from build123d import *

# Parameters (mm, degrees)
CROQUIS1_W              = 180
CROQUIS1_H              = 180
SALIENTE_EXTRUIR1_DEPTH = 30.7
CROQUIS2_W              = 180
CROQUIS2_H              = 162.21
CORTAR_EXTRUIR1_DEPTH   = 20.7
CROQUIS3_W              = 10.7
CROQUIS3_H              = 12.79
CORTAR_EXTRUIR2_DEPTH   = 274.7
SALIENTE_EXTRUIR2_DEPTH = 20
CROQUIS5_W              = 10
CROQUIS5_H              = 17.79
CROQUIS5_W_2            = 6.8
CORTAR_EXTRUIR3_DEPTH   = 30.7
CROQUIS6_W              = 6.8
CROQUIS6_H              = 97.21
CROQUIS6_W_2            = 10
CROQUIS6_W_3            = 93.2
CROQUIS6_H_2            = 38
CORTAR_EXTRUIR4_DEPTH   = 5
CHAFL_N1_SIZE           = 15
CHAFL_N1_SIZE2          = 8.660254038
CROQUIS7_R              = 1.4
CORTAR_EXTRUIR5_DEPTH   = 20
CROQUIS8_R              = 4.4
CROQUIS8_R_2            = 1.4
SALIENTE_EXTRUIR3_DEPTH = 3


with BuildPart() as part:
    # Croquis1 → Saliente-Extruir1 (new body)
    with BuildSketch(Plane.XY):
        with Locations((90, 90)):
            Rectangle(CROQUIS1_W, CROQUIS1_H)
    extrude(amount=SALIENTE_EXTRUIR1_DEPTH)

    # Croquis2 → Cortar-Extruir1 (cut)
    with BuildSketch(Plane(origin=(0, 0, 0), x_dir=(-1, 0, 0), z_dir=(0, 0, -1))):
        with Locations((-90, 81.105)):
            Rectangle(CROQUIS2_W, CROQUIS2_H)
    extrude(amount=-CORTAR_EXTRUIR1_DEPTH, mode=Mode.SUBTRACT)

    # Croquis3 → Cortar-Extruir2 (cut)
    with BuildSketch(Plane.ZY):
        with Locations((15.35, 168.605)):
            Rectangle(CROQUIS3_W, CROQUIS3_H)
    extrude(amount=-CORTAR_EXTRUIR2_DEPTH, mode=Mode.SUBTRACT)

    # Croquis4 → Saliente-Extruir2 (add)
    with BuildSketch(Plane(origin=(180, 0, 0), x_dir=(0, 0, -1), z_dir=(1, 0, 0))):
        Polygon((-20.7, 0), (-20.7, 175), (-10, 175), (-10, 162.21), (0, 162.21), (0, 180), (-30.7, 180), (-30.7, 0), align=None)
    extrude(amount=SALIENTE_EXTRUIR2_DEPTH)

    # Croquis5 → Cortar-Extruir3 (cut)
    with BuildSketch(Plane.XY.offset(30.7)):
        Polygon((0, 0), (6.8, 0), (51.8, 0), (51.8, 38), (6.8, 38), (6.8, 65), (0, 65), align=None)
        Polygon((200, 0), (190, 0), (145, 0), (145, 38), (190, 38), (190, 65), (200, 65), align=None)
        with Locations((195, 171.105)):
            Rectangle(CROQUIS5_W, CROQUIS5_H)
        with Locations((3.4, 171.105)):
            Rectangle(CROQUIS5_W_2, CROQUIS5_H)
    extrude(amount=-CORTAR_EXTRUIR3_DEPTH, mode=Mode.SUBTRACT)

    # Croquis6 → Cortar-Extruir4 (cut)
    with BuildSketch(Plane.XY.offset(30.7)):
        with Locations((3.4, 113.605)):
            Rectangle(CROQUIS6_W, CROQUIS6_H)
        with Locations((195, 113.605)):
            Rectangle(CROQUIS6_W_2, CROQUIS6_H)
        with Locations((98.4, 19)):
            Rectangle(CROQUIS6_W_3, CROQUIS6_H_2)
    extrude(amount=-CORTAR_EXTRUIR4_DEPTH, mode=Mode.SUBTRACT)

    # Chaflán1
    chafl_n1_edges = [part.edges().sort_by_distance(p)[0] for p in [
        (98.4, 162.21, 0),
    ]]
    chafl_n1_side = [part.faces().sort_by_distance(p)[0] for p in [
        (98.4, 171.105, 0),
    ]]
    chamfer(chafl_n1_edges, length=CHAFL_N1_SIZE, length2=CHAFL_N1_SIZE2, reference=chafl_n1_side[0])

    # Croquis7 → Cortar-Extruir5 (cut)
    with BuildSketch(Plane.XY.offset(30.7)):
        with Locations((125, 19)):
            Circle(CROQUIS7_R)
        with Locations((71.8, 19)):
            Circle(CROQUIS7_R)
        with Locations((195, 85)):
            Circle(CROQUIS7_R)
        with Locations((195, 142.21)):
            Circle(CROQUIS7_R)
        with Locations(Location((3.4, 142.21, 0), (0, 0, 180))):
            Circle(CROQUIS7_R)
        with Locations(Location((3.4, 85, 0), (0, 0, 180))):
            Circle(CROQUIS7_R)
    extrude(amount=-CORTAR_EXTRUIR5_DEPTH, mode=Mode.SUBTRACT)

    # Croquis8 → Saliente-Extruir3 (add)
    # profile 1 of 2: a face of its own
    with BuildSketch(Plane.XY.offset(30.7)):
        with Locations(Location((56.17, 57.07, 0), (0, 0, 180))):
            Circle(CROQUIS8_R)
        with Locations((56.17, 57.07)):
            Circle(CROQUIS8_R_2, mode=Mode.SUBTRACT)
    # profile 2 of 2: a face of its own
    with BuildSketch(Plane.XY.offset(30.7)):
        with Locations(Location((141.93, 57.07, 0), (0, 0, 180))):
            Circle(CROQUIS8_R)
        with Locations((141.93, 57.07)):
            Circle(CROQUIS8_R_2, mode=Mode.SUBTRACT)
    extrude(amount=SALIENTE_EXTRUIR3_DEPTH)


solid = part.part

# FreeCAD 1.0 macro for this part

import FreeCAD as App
import Part
import Sketcher

V = App.Vector


def edges_at(feature, points):
    """Names of the edges that pass closest to the given points."""
    edges = feature.Shape.Edges
    near = lambda p: min(range(len(edges)), key=lambda i: edges[i].distToShape(Part.Vertex(*p))[0])
    return sorted({f"Edge{near(p) + 1}" for p in points})

doc = App.newDocument("Part")
params = doc.addObject("Spreadsheet::Sheet", "Params")
for row, (alias, value) in enumerate([
    ("sketch1_width", "180 mm"),
    ("pad1_length", "30.7 mm"),
    ("sketch2_width", "180 mm"),
    ("sketch2_height", "162.21 mm"),
    ("pocket1_length", "20.7 mm"),
    ("sketch3_height", "10.7 mm"),
    ("sketch3_width", "12.79 mm"),
    ("pocket2_length", "274.7 mm"),
    ("sketch4_width", "175 mm"),
    ("sketch4_width2", "180 mm"),
    ("sketch4_height", "10 mm"),
    ("sketch4_height2", "10.7 mm"),
    ("sketch4_width3", "12.79 mm"),
    ("pad2_length", "20 mm"),
    ("sketch5_width", "45 mm"),
    ("sketch5_width2", "55 mm"),
    ("sketch5_height", "38 mm"),
    ("sketch5_height2", "27 mm"),
    ("sketch5_width3", "51.8 mm"),
    ("pocket3_length", "30.7 mm"),
    ("sketch6_width", "10 mm"),
    ("sketch6_height", "38 mm"),
    ("sketch6_width2", "6.8 mm"),
    ("sketch6_width3", "93.2 mm"),
    ("sketch6_height2", "97.21 mm"),
    ("pocket4_length", "5 mm"),
    ("chamfer_size", "15 mm"),
    ("chamfer_size2", "8.660254 mm"),
    ("sketch7_diameter", "2.8 mm"),
    ("pocket5_length", "20 mm"),
    ("sketch8_diameter", "8.8 mm"),
    ("sketch8_diameter2", "2.8 mm"),
    ("pad3_length", "3 mm"),
], start=1):
    params.set(f"A{row}", alias)
    params.set(f"B{row}", "=" + value)
    params.setAlias(f"B{row}", alias)

body = doc.addObject("PartDesign::Body", "Body")

sketch1 = body.newObject("Sketcher::SketchObject", "Sketch")
sketch1.AttachmentSupport = (doc.getObject("XY_Plane"), [""])
sketch1.MapMode = "FlatFace"
sketch1.addGeometry([
    Part.LineSegment(V(0, 180, 0), V(0, 0, 0)),
    Part.LineSegment(V(0, 0, 0), V(180, 0, 0)),
    Part.LineSegment(V(180, 0, 0), V(180, 180, 0)),
    Part.LineSegment(V(180, 180, 0), V(0, 180, 0)),
], False)
sketch1.addConstraint([
    Sketcher.Constraint("Coincident", 0, 2, 1, 1),
    Sketcher.Constraint("Coincident", 1, 2, 2, 1),
    Sketcher.Constraint("Coincident", 2, 2, 3, 1),
    Sketcher.Constraint("Coincident", 3, 2, 0, 1),
    Sketcher.Constraint("Vertical", 0),
    Sketcher.Constraint("Horizontal", 1),
    Sketcher.Constraint("Vertical", 2),
    Sketcher.Constraint("Horizontal", 3),
    Sketcher.Constraint("Coincident", 0, 2, -1, 1),
    Sketcher.Constraint("Equal", 3, 0),
    Sketcher.Constraint("DistanceX", 1, 1, 1, 2, 180.0),
])
sketch1.setExpression("Constraints[10]", "Params.sketch1_width")
pad1 = body.newObject("PartDesign::Pad", "Pad")
pad1.Profile = sketch1
pad1.setExpression("Length", "Params.pad1_length")

sketch2 = body.newObject("Sketcher::SketchObject", "Sketch001")
sketch2.AttachmentSupport = (doc.getObject("XY_Plane"), [""])
sketch2.MapMode = "FlatFace"
sketch2.addGeometry([
    Part.LineSegment(V(180, 162, 0), V(180, 0, 0)),
    Part.LineSegment(V(180, 0, 0), V(0, 0, 0)),
    Part.LineSegment(V(0, 0, 0), V(0, 162, 0)),
    Part.LineSegment(V(0, 162, 0), V(180, 162, 0)),
], False)
sketch2.addConstraint([
    Sketcher.Constraint("Coincident", 0, 2, 1, 1),
    Sketcher.Constraint("Coincident", 1, 2, 2, 1),
    Sketcher.Constraint("Coincident", 2, 2, 3, 1),
    Sketcher.Constraint("Coincident", 3, 2, 0, 1),
    Sketcher.Constraint("Vertical", 0),
    Sketcher.Constraint("Horizontal", 1),
    Sketcher.Constraint("Vertical", 2),
    Sketcher.Constraint("Horizontal", 3),
    Sketcher.Constraint("Coincident", 1, 2, -1, 1),
    Sketcher.Constraint("DistanceX", 1, 2, 1, 1, 180.0),
    Sketcher.Constraint("DistanceY", 0, 2, 0, 1, 162.21),
])
sketch2.setExpression("Constraints[9]", "Params.sketch2_width")
sketch2.setExpression("Constraints[10]", "Params.sketch2_height")
pocket1 = body.newObject("PartDesign::Pocket", "Pocket")
pocket1.Profile = sketch2
pocket1.setExpression("Length", "Params.pocket1_length")
pocket1.Reversed = True

sketch3 = body.newObject("Sketcher::SketchObject", "Sketch002")
sketch3.AttachmentSupport = (doc.getObject("YZ_Plane"), [""])
sketch3.MapMode = "FlatFace"
sketch3.addGeometry([
    Part.LineSegment(V(175, 10, 0), V(162, 10, 0)),
    Part.LineSegment(V(162, 10, 0), V(162, 21, 0)),
    Part.LineSegment(V(162, 21, 0), V(175, 21, 0)),
    Part.LineSegment(V(175, 21, 0), V(175, 10, 0)),
], False)
sketch3.addConstraint([
    Sketcher.Constraint("Coincident", 0, 2, 1, 1),
    Sketcher.Constraint("Coincident", 1, 2, 2, 1),
    Sketcher.Constraint("Coincident", 2, 2, 3, 1),
    Sketcher.Constraint("Coincident", 3, 2, 0, 1),
    Sketcher.Constraint("Horizontal", 0),
    Sketcher.Constraint("Vertical", 1),
    Sketcher.Constraint("Horizontal", 2),
    Sketcher.Constraint("Vertical", 3),
    Sketcher.Constraint("DistanceY", 1, 1, 1, 2, 10.7),
    Sketcher.Constraint("DistanceY", -1, 1, 0, 2, 10.0),
    Sketcher.Constraint("DistanceX", -1, 1, 2, 2, 175.0),
    Sketcher.Constraint("DistanceX", 0, 2, 0, 1, 12.79),
])
sketch3.setExpression("Constraints[8]", "Params.sketch3_height")
sketch3.setExpression("Constraints[11]", "Params.sketch3_width")
pocket2 = body.newObject("PartDesign::Pocket", "Pocket001")
pocket2.Profile = sketch3
pocket2.setExpression("Length", "Params.pocket2_length")
pocket2.Reversed = True

sketch4 = body.newObject("Sketcher::SketchObject", "Sketch003")
sketch4.AttachmentSupport = (doc.getObject("YZ_Plane"), [""])
sketch4.MapMode = "FlatFace"
sketch4.AttachmentOffset = App.Placement(V(0, 0, 180), App.Rotation())
sketch4.addGeometry([
    Part.LineSegment(V(0, 21, 0), V(175, 21, 0)),
    Part.LineSegment(V(175, 21, 0), V(175, 10, 0)),
    Part.LineSegment(V(175, 10, 0), V(162, 10, 0)),
    Part.LineSegment(V(162, 10, 0), V(162, 0, 0)),
    Part.LineSegment(V(162, 0, 0), V(180, 0, 0)),
    Part.LineSegment(V(180, 0, 0), V(180, 31, 0)),
    Part.LineSegment(V(180, 31, 0), V(0, 31, 0)),
    Part.LineSegment(V(0, 31, 0), V(0, 21, 0)),
], False)
sketch4.addConstraint([
    Sketcher.Constraint("Coincident", 0, 2, 1, 1),
    Sketcher.Constraint("Coincident", 1, 2, 2, 1),
    Sketcher.Constraint("Coincident", 2, 2, 3, 1),
    Sketcher.Constraint("Coincident", 3, 2, 4, 1),
    Sketcher.Constraint("Coincident", 4, 2, 5, 1),
    Sketcher.Constraint("Coincident", 5, 2, 6, 1),
    Sketcher.Constraint("Coincident", 6, 2, 7, 1),
    Sketcher.Constraint("Coincident", 7, 2, 0, 1),
    Sketcher.Constraint("Horizontal", 0),
    Sketcher.Constraint("Vertical", 1),
    Sketcher.Constraint("Horizontal", 2),
    Sketcher.Constraint("Vertical", 3),
    Sketcher.Constraint("Horizontal", 4),
    Sketcher.Constraint("Vertical", 5),
    Sketcher.Constraint("Horizontal", 6),
    Sketcher.Constraint("Vertical", 7),
    Sketcher.Constraint("PointOnObject", 3, 2, -1),
    Sketcher.Constraint("PointOnObject", 6, 2, -2),
    Sketcher.Constraint("Equal", 3, 7),
    Sketcher.Constraint("DistanceX", 0, 1, 0, 2, 175.0),
    Sketcher.Constraint("DistanceX", 6, 2, 6, 1, 180.0),
    Sketcher.Constraint("DistanceY", 3, 2, 3, 1, 10.0),
    Sketcher.Constraint("DistanceY", 1, 2, 1, 1, 10.7),
    Sketcher.Constraint("DistanceX", 2, 2, 2, 1, 12.79),
])
sketch4.setExpression("Constraints[19]", "Params.sketch4_width")
sketch4.setExpression("Constraints[20]", "Params.sketch4_width2")
sketch4.setExpression("Constraints[21]", "Params.sketch4_height")
sketch4.setExpression("Constraints[22]", "Params.sketch4_height2")
sketch4.setExpression("Constraints[23]", "Params.sketch4_width3")
pad2 = body.newObject("PartDesign::Pad", "Pad001")
pad2.Profile = sketch4
pad2.setExpression("Length", "Params.pad2_length")

sketch5 = body.newObject("Sketcher::SketchObject", "Sketch004")
sketch5.AttachmentSupport = (doc.getObject("XY_Plane"), [""])
sketch5.MapMode = "FlatFace"
sketch5.AttachmentOffset = App.Placement(V(0, 0, 30.7), App.Rotation())
sketch5.addGeometry([
    Part.LineSegment(V(0, 0, 0), V(52, 0, 0)),
    Part.LineSegment(V(52, 0, 0), V(52, 38, 0)),
    Part.LineSegment(V(52, 38, 0), V(7, 38, 0)),
    Part.LineSegment(V(7, 38, 0), V(7, 65, 0)),
    Part.LineSegment(V(7, 65, 0), V(0, 65, 0)),
    Part.LineSegment(V(0, 65, 0), V(0, 0, 0)),
    Part.LineSegment(V(145, 0, 0), V(200, 0, 0)),
    Part.LineSegment(V(200, 0, 0), V(200, 65, 0)),
    Part.LineSegment(V(200, 65, 0), V(190, 65, 0)),
    Part.LineSegment(V(190, 65, 0), V(190, 38, 0)),
    Part.LineSegment(V(190, 38, 0), V(145, 38, 0)),
    Part.LineSegment(V(145, 38, 0), V(145, 0, 0)),
    Part.LineSegment(V(190, 180, 0), V(190, 162, 0)),
    Part.LineSegment(V(190, 162, 0), V(200, 162, 0)),
    Part.LineSegment(V(200, 162, 0), V(200, 180, 0)),
    Part.LineSegment(V(200, 180, 0), V(190, 180, 0)),
    Part.LineSegment(V(0, 180, 0), V(0, 162, 0)),
    Part.LineSegment(V(0, 162, 0), V(7, 162, 0)),
    Part.LineSegment(V(7, 162, 0), V(7, 180, 0)),
    Part.LineSegment(V(7, 180, 0), V(0, 180, 0)),
], False)
sketch5.addConstraint([
    Sketcher.Constraint("Coincident", 0, 2, 1, 1),
    Sketcher.Constraint("Coincident", 1, 2, 2, 1),
    Sketcher.Constraint("Coincident", 2, 2, 3, 1),
    Sketcher.Constraint("Coincident", 3, 2, 4, 1),
    Sketcher.Constraint("Coincident", 4, 2, 5, 1),
    Sketcher.Constraint("Coincident", 5, 2, 0, 1),
    Sketcher.Constraint("Coincident", 6, 2, 7, 1),
    Sketcher.Constraint("Coincident", 7, 2, 8, 1),
    Sketcher.Constraint("Coincident", 8, 2, 9, 1),
    Sketcher.Constraint("Coincident", 9, 2, 10, 1),
    Sketcher.Constraint("Coincident", 10, 2, 11, 1),
    Sketcher.Constraint("Coincident", 11, 2, 6, 1),
    Sketcher.Constraint("Coincident", 12, 2, 13, 1),
    Sketcher.Constraint("Coincident", 13, 2, 14, 1),
    Sketcher.Constraint("Coincident", 14, 2, 15, 1),
    Sketcher.Constraint("Coincident", 15, 2, 12, 1),
    Sketcher.Constraint("Coincident", 16, 2, 17, 1),
    Sketcher.Constraint("Coincident", 17, 2, 18, 1),
    Sketcher.Constraint("Coincident", 18, 2, 19, 1),
    Sketcher.Constraint("Coincident", 19, 2, 16, 1),
    Sketcher.Constraint("Horizontal", 0),
    Sketcher.Constraint("Vertical", 1),
    Sketcher.Constraint("Horizontal", 2),
    Sketcher.Constraint("Vertical", 3),
    Sketcher.Constraint("Horizontal", 4),
    Sketcher.Constraint("Vertical", 5),
    Sketcher.Constraint("Horizontal", 6),
    Sketcher.Constraint("Vertical", 7),
    Sketcher.Constraint("Horizontal", 8),
    Sketcher.Constraint("Vertical", 9),
    Sketcher.Constraint("Horizontal", 10),
    Sketcher.Constraint("Vertical", 11),
    Sketcher.Constraint("Vertical", 12),
    Sketcher.Constraint("Horizontal", 13),
    Sketcher.Constraint("Vertical", 14),
    Sketcher.Constraint("Horizontal", 15),
    Sketcher.Constraint("Vertical", 16),
    Sketcher.Constraint("Horizontal", 17),
    Sketcher.Constraint("Vertical", 18),
    Sketcher.Constraint("Horizontal", 19),
    Sketcher.Constraint("Coincident", 5, 2, -1, 1),
    Sketcher.Constraint("PointOnObject", 6, 2, -1),
    Sketcher.Constraint("PointOnObject", 16, 2, -2),
    Sketcher.Constraint("Horizontal", 4, 2, 7, 2),
    Sketcher.Constraint("Horizontal", 2, 2, 9, 2),
    Sketcher.Constraint("Horizontal", 13, 2, 16, 2),
    Sketcher.Constraint("Horizontal", 15, 2, 18, 2),
    Sketcher.Constraint("Vertical", 9, 2, 12, 2),
    Sketcher.Constraint("Vertical", 7, 2, 13, 2),
    Sketcher.Constraint("Vertical", 3, 2, 17, 2),
    Sketcher.Constraint("Equal", 2, 10),
    Sketcher.Constraint("DistanceX", 2, 2, 2, 1, 45.0),
    Sketcher.Constraint("DistanceX", 6, 1, 6, 2, 55.0),
    Sketcher.Constraint("DistanceY", 1, 1, 1, 2, 38.0),
    Sketcher.Constraint("DistanceY", 3, 1, 3, 2, 27.0),
    Sketcher.Constraint("DistanceX", 0, 1, 0, 2, 51.8),
    Sketcher.Constraint("DistanceX", -1, 1, 6, 2, 200.0),
    Sketcher.Constraint("DistanceY", -1, 1, 14, 2, 180.0),
    Sketcher.Constraint("DistanceY", 12, 2, 12, 1, 17.79),
])
sketch5.setExpression("Constraints[51]", "Params.sketch5_width")
sketch5.setExpression("Constraints[52]", "Params.sketch5_width2")
sketch5.setExpression("Constraints[53]", "Params.sketch5_height")
sketch5.setExpression("Constraints[54]", "Params.sketch5_height2")
sketch5.setExpression("Constraints[55]", "Params.sketch5_width3")
pocket3 = body.newObject("PartDesign::Pocket", "Pocket002")
pocket3.Profile = sketch5
pocket3.setExpression("Length", "Params.pocket3_length")

sketch6 = body.newObject("Sketcher::SketchObject", "Sketch005")
sketch6.AttachmentSupport = (doc.getObject("XY_Plane"), [""])
sketch6.MapMode = "FlatFace"
sketch6.AttachmentOffset = App.Placement(V(0, 0, 30.7), App.Rotation())
sketch6.addGeometry([
    Part.LineSegment(V(0, 162, 0), V(0, 65, 0)),
    Part.LineSegment(V(0, 65, 0), V(7, 65, 0)),
    Part.LineSegment(V(7, 65, 0), V(7, 162, 0)),
    Part.LineSegment(V(7, 162, 0), V(0, 162, 0)),
    Part.LineSegment(V(190, 162, 0), V(190, 65, 0)),
    Part.LineSegment(V(190, 65, 0), V(200, 65, 0)),
    Part.LineSegment(V(200, 65, 0), V(200, 162, 0)),
    Part.LineSegment(V(200, 162, 0), V(190, 162, 0)),
    Part.LineSegment(V(52, 38, 0), V(52, 0, 0)),
    Part.LineSegment(V(52, 0, 0), V(145, 0, 0)),
    Part.LineSegment(V(145, 0, 0), V(145, 38, 0)),
    Part.LineSegment(V(145, 38, 0), V(52, 38, 0)),
], False)
sketch6.addConstraint([
    Sketcher.Constraint("Coincident", 0, 2, 1, 1),
    Sketcher.Constraint("Coincident", 1, 2, 2, 1),
    Sketcher.Constraint("Coincident", 2, 2, 3, 1),
    Sketcher.Constraint("Coincident", 3, 2, 0, 1),
    Sketcher.Constraint("Coincident", 4, 2, 5, 1),
    Sketcher.Constraint("Coincident", 5, 2, 6, 1),
    Sketcher.Constraint("Coincident", 6, 2, 7, 1),
    Sketcher.Constraint("Coincident", 7, 2, 4, 1),
    Sketcher.Constraint("Coincident", 8, 2, 9, 1),
    Sketcher.Constraint("Coincident", 9, 2, 10, 1),
    Sketcher.Constraint("Coincident", 10, 2, 11, 1),
    Sketcher.Constraint("Coincident", 11, 2, 8, 1),
    Sketcher.Constraint("Vertical", 0),
    Sketcher.Constraint("Horizontal", 1),
    Sketcher.Constraint("Vertical", 2),
    Sketcher.Constraint("Horizontal", 3),
    Sketcher.Constraint("Vertical", 4),
    Sketcher.Constraint("Horizontal", 5),
    Sketcher.Constraint("Vertical", 6),
    Sketcher.Constraint("Horizontal", 7),
    Sketcher.Constraint("Vertical", 8),
    Sketcher.Constraint("Horizontal", 9),
    Sketcher.Constraint("Vertical", 10),
    Sketcher.Constraint("Horizontal", 11),
    Sketcher.Constraint("PointOnObject", 0, 2, -2),
    Sketcher.Constraint("PointOnObject", 8, 2, -1),
    Sketcher.Constraint("Horizontal", 1, 2, 4, 2),
    Sketcher.Constraint("Horizontal", 3, 2, 6, 2),
    Sketcher.Constraint("DistanceX", 5, 1, 5, 2, 10.0),
    Sketcher.Constraint("DistanceY", 8, 2, 8, 1, 38.0),
    Sketcher.Constraint("DistanceX", 1, 1, 1, 2, 6.8),
    Sketcher.Constraint("DistanceX", 9, 1, 9, 2, 93.2),
    Sketcher.Constraint("DistanceY", -1, 1, 0, 2, 65.0),
    Sketcher.Constraint("DistanceX", -1, 1, 4, 2, 190.0),
    Sketcher.Constraint("DistanceX", -1, 1, 9, 2, 145.0),
    Sketcher.Constraint("DistanceY", 0, 2, 0, 1, 97.21),
])
sketch6.setExpression("Constraints[28]", "Params.sketch6_width")
sketch6.setExpression("Constraints[29]", "Params.sketch6_height")
sketch6.setExpression("Constraints[30]", "Params.sketch6_width2")
sketch6.setExpression("Constraints[31]", "Params.sketch6_width3")
sketch6.setExpression("Constraints[35]", "Params.sketch6_height2")
pocket4 = body.newObject("PartDesign::Pocket", "Pocket003")
pocket4.Profile = sketch6
pocket4.setExpression("Length", "Params.pocket4_length")
doc.recompute()

chamfer = body.newObject("PartDesign::Chamfer", "Chamfer")
chamfer.Base = (pocket4, edges_at(pocket4, [(98.4, 162.21, 0)]))
chamfer.ChamferType = "Two distances"
chamfer.setExpression("Size", "Params.chamfer_size")
chamfer.setExpression("Size2", "Params.chamfer_size2")
chamfer.FlipDirection = True

sketch7 = body.newObject("Sketcher::SketchObject", "Sketch006")
sketch7.AttachmentSupport = (doc.getObject("XY_Plane"), [""])
sketch7.MapMode = "FlatFace"
sketch7.AttachmentOffset = App.Placement(V(0, 0, 30.7), App.Rotation())
sketch7.addGeometry([
    Part.Circle(V(125, 19, 0), V(0, 0, 1), 1.4),
    Part.Circle(V(71.8, 19, 0), V(0, 0, 1), 1.4),
    Part.Circle(V(195, 85, 0), V(0, 0, 1), 1.4),
    Part.Circle(V(195, 142.2, 0), V(0, 0, 1), 1.4),
    Part.Circle(V(3.4, 142.2, 0), V(0, 0, 1), 1.4),
    Part.Circle(V(3.4, 85, 0), V(0, 0, 1), 1.4),
], False)
sketch7.addConstraint([
    Sketcher.Constraint("Equal", 0, 1),
    Sketcher.Constraint("Equal", 1, 2),
    Sketcher.Constraint("Equal", 2, 3),
    Sketcher.Constraint("Equal", 3, 4),
    Sketcher.Constraint("Equal", 4, 5),
    Sketcher.Constraint("Horizontal", 0, 3, 1, 3),
    Sketcher.Constraint("Horizontal", 3, 3, 4, 3),
    Sketcher.Constraint("Horizontal", 2, 3, 5, 3),
    Sketcher.Constraint("Vertical", 2, 3, 3, 3),
    Sketcher.Constraint("Vertical", 4, 3, 5, 3),
    Sketcher.Constraint("Diameter", 0, 2.8),
    Sketcher.Constraint("DistanceX", -1, 1, 0, 3, 125.0),
    Sketcher.Constraint("DistanceY", -1, 1, 0, 3, 19.0),
    Sketcher.Constraint("DistanceX", -1, 1, 2, 3, 195.0),
    Sketcher.Constraint("DistanceY", -1, 1, 2, 3, 85.0),
    Sketcher.Constraint("DistanceX", -1, 1, 1, 3, 71.8),
    Sketcher.Constraint("DistanceX", -1, 1, 4, 3, 3.4),
    Sketcher.Constraint("DistanceY", -1, 1, 3, 3, 142.21),
])
sketch7.setExpression("Constraints[10]", "Params.sketch7_diameter")
pocket5 = body.newObject("PartDesign::Pocket", "Pocket004")
pocket5.Profile = sketch7
pocket5.setExpression("Length", "Params.pocket5_length")

sketch8 = body.newObject("Sketcher::SketchObject", "Sketch007")
sketch8.AttachmentSupport = (doc.getObject("XY_Plane"), [""])
sketch8.MapMode = "FlatFace"
sketch8.AttachmentOffset = App.Placement(V(0, 0, 30.7), App.Rotation())
sketch8.addGeometry([
    Part.Circle(V(56.2, 57.1, 0), V(0, 0, 1), 4.4),
    Part.Circle(V(56.2, 57.1, 0), V(0, 0, 1), 1.4),
    Part.Circle(V(141.9, 57.1, 0), V(0, 0, 1), 4.4),
    Part.Circle(V(141.9, 57.1, 0), V(0, 0, 1), 1.4),
], False)
sketch8.addConstraint([
    Sketcher.Constraint("Coincident", 1, 3, 0, 3),
    Sketcher.Constraint("Coincident", 3, 3, 2, 3),
    Sketcher.Constraint("Equal", 0, 2),
    Sketcher.Constraint("Equal", 1, 3),
    Sketcher.Constraint("Horizontal", 1, 3, 2, 3),
    Sketcher.Constraint("Diameter", 0, 8.8),
    Sketcher.Constraint("Diameter", 1, 2.8),
    Sketcher.Constraint("DistanceX", -1, 1, 0, 3, 56.17),
    Sketcher.Constraint("DistanceY", -1, 1, 0, 3, 57.07),
    Sketcher.Constraint("DistanceX", -1, 1, 2, 3, 141.93),
])
sketch8.setExpression("Constraints[5]", "Params.sketch8_diameter")
sketch8.setExpression("Constraints[6]", "Params.sketch8_diameter2")
pad3 = body.newObject("PartDesign::Pad", "Pad002")
pad3.Profile = sketch8
pad3.setExpression("Length", "Params.pad3_length")

doc.recompute()
